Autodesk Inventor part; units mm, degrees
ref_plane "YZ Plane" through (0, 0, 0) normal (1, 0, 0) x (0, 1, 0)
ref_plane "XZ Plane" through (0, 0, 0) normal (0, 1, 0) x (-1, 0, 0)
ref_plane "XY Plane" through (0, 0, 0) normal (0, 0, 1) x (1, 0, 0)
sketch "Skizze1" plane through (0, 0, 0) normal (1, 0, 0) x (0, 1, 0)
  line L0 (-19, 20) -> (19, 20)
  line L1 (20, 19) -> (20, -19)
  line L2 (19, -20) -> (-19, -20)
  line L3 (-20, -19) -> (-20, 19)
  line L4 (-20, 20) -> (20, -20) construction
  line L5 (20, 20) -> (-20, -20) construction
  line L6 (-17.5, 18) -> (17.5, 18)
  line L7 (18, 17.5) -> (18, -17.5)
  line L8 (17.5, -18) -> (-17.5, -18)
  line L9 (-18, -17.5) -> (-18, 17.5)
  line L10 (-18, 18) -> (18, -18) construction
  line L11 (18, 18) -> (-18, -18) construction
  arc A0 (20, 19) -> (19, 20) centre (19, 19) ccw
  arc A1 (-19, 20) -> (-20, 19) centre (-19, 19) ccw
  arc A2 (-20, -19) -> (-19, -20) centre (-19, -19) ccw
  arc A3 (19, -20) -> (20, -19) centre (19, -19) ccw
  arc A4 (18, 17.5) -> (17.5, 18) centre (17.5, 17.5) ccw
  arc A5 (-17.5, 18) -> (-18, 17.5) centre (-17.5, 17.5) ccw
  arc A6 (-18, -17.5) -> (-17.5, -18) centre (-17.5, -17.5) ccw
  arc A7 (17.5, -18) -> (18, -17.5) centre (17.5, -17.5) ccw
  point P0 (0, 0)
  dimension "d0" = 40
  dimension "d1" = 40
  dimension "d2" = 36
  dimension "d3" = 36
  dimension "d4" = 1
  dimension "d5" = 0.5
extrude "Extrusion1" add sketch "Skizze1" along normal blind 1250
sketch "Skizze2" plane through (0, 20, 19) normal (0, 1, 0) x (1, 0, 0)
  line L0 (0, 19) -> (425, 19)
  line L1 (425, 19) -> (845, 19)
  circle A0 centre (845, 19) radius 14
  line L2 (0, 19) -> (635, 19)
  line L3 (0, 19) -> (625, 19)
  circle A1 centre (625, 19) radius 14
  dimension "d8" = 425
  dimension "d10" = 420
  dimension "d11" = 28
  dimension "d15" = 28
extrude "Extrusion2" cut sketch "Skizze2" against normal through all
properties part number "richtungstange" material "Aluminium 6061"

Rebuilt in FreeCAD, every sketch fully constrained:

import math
import FreeCAD as App
import Part
import Sketcher

doc = App.newDocument("Part")
body = doc.addObject("PartDesign::Body", "Body")

sketch1 = doc.addObject("Sketcher::SketchObject", "Sketch")
body.addObject(sketch1)
sketch1.AttachmentSupport = (doc.YZ_Plane, [""])
sketch1.MapMode = "FlatFace"
sketch1.addGeometry([
    Part.LineSegment(App.Vector(19, 20, 0), App.Vector(-19, 20, 0)),
    Part.ArcOfCircle(Part.Circle(App.Vector(-19, 19, 0), App.Vector(0, 0, 1), 1), math.radians(90), math.radians(180)),
    Part.LineSegment(App.Vector(-20, 19, 0), App.Vector(-20, -19, 0)),
    Part.ArcOfCircle(Part.Circle(App.Vector(-19, -19, 0), App.Vector(0, 0, 1), 1), math.radians(180), math.radians(270)),
    Part.LineSegment(App.Vector(-19, -20, 0), App.Vector(19, -20, 0)),
    Part.ArcOfCircle(Part.Circle(App.Vector(19, -19, 0), App.Vector(0, 0, 1), 1), math.radians(-90), math.radians(0)),
    Part.LineSegment(App.Vector(20, -19, 0), App.Vector(20, 19, 0)),
    Part.ArcOfCircle(Part.Circle(App.Vector(19, 19, 0), App.Vector(0, 0, 1), 1), math.radians(0), math.radians(90)),
    Part.ArcOfCircle(Part.Circle(App.Vector(-17.5, 17.5, 0), App.Vector(0, 0, 1), 0.5), math.radians(90), math.radians(180)),
    Part.LineSegment(App.Vector(-17.5, 18, 0), App.Vector(17.5, 18, 0)),
    Part.ArcOfCircle(Part.Circle(App.Vector(17.5, 17.5, 0), App.Vector(0, 0, 1), 0.5), math.radians(0), math.radians(90)),
    Part.LineSegment(App.Vector(18, 17.5, 0), App.Vector(18, -17.5, 0)),
    Part.ArcOfCircle(Part.Circle(App.Vector(17.5, -17.5, 0), App.Vector(0, 0, 1), 0.5), math.radians(-90), math.radians(0)),
    Part.LineSegment(App.Vector(17.5, -18, 0), App.Vector(-17.5, -18, 0)),
    Part.ArcOfCircle(Part.Circle(App.Vector(-17.5, -17.5, 0), App.Vector(0, 0, 1), 0.5), math.radians(180), math.radians(270)),
    Part.LineSegment(App.Vector(-18, -17.5, 0), App.Vector(-18, 17.5, 0)),
], False)
sketch1.addConstraint([
    Sketcher.Constraint("Tangent", 0, 2, 1, 1),
    Sketcher.Constraint("Tangent", 1, 2, 2, 1),
    Sketcher.Constraint("Tangent", 2, 2, 3, 1),
    Sketcher.Constraint("Tangent", 3, 2, 4, 1),
    Sketcher.Constraint("Tangent", 4, 2, 5, 1),
    Sketcher.Constraint("Tangent", 5, 2, 6, 1),
    Sketcher.Constraint("Tangent", 6, 2, 7, 1),
    Sketcher.Constraint("Tangent", 7, 2, 0, 1),
    Sketcher.Constraint("Tangent", 8, 1, 9, 1),
    Sketcher.Constraint("Tangent", 9, 2, 10, 2),
    Sketcher.Constraint("Tangent", 10, 1, 11, 1),
    Sketcher.Constraint("Tangent", 11, 2, 12, 2),
    Sketcher.Constraint("Tangent", 12, 1, 13, 1),
    Sketcher.Constraint("Tangent", 13, 2, 14, 2),
    Sketcher.Constraint("Tangent", 14, 1, 15, 1),
    Sketcher.Constraint("Tangent", 15, 2, 8, 2),
    Sketcher.Constraint("Horizontal", 0),
    Sketcher.Constraint("Vertical", 2),
    Sketcher.Constraint("Horizontal", 4),
    Sketcher.Constraint("Vertical", 6),
    Sketcher.Constraint("Horizontal", 9),
    Sketcher.Constraint("Vertical", 11),
    Sketcher.Constraint("Horizontal", 13),
    Sketcher.Constraint("Vertical", 15),
    Sketcher.Constraint("Equal", 1, 3),
    Sketcher.Constraint("Equal", 3, 5),
    Sketcher.Constraint("Equal", 5, 7),
    Sketcher.Constraint("Equal", 8, 10),
    Sketcher.Constraint("Equal", 10, 12),
    Sketcher.Constraint("Equal", 12, 14),
    Sketcher.Constraint("Symmetric", 1, 3, 5, 3, -1, 1),
    Sketcher.Constraint("Symmetric", 8, 3, 12, 3, -1, 1),
    Sketcher.Constraint("Equal", 4, 2),
    Sketcher.Constraint("Equal", 13, 11),
    Sketcher.Constraint("Radius", 1, 1.0),
    Sketcher.Constraint("Radius", 8, 0.5),
    Sketcher.Constraint("DistanceY", 8, 1, 1, 3, 1.0),
    Sketcher.Constraint("DistanceX", 0, 2, 0, 1, 38.0),
])
pad1 = doc.addObject("PartDesign::Pad", "Pad")
body.addObject(pad1)
pad1.Profile = sketch1
pad1.Length = 1250

sketch2 = doc.addObject("Sketcher::SketchObject", "Sketch001")
body.addObject(sketch2)
sketch2.AttachmentSupport = (doc.XZ_Plane, [""])
sketch2.MapMode = "FlatFace"
sketch2.AttachmentOffset = App.Placement(App.Vector(0, 0, -20), App.Rotation())
sketch2.addGeometry([
    Part.Circle(App.Vector(625, 0, 0), App.Vector(0, 0, 1), 14),
    Part.Circle(App.Vector(845, 0, 0), App.Vector(0, 0, 1), 14),
], False)
sketch2.addConstraint([
    Sketcher.Constraint("Equal", 0, 1),
    Sketcher.Constraint("PointOnObject", 0, 3, -1),
    Sketcher.Constraint("PointOnObject", 1, 3, -1),
    Sketcher.Constraint("Diameter", 0, 28.0),
    Sketcher.Constraint("DistanceX", -1, 1, 0, 3, 625.0),
    Sketcher.Constraint("DistanceX", -1, 1, 1, 3, 845.0),
])
pocket1 = doc.addObject("PartDesign::Pocket", "Pocket")
body.addObject(pocket1)
pocket1.Profile = sketch2
pocket1.Type = "ThroughAll"
pocket1.Reversed = True

doc.recompute()
